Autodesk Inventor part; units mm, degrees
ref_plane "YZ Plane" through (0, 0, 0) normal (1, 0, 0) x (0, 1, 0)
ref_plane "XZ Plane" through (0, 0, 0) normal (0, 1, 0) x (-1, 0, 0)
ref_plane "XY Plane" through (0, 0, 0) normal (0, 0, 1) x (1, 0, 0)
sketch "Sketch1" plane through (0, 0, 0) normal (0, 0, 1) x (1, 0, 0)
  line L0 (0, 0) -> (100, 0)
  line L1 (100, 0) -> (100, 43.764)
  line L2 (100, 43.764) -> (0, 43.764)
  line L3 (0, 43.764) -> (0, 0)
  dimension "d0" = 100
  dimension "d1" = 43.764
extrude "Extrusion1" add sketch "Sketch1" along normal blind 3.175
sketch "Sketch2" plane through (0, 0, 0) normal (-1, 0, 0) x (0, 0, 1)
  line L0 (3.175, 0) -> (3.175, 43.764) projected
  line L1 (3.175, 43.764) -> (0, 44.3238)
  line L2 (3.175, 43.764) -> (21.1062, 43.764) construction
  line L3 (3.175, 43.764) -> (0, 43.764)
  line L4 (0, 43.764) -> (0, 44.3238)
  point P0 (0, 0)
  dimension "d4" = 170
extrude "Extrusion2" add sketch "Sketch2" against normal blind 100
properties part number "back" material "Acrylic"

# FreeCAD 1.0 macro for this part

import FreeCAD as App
import Part
import Sketcher
Q = App.Units.Quantity

doc = App.newDocument("Part")
params = doc.addObject("Spreadsheet::Sheet", "Params")
for row, (alias, value) in enumerate([
    ("sketch1_width", "3.937 in"),
    ("sketch1_height", "1.723 in"),
    ("pad1_length", "0.125 in"),
    ("sketch2_height", "0.125 in"),
    ("pad2_length", "3.9370079 in"),
], start=1):
    params.set(f"A{row}", alias)
    params.set(f"B{row}", "=" + value)
    params.setAlias(f"B{row}", alias)

body = doc.addObject("PartDesign::Body", "Body")

# Sketch on XY plane
sketch1 = doc.addObject("Sketcher::SketchObject", "Sketch")
body.addObject(sketch1)
sketch1.AttachmentSupport = (doc.XY_Plane, [""])
sketch1.MapMode = "FlatFace"
sketch1.addGeometry(Part.LineSegment(App.Vector(0, 44, 0), App.Vector(0, 0, 0)), False)
sketch1.addGeometry(Part.LineSegment(App.Vector(0, 0, 0), App.Vector(100, 0, 0)), False)
sketch1.addGeometry(Part.LineSegment(App.Vector(100, 0, 0), App.Vector(100, 44, 0)), False)
sketch1.addGeometry(Part.LineSegment(App.Vector(100, 44, 0), App.Vector(0, 44, 0)), False)
sketch1.addConstraint(Sketcher.Constraint("Coincident", 0, 2, 1, 1))
sketch1.addConstraint(Sketcher.Constraint("Coincident", 1, 2, 2, 1))
sketch1.addConstraint(Sketcher.Constraint("Coincident", 2, 2, 3, 1))
sketch1.addConstraint(Sketcher.Constraint("Coincident", 3, 2, 0, 1))
sketch1.addConstraint(Sketcher.Constraint("Vertical", 0))
sketch1.addConstraint(Sketcher.Constraint("Horizontal", 1))
sketch1.addConstraint(Sketcher.Constraint("Vertical", 2))
sketch1.addConstraint(Sketcher.Constraint("Horizontal", 3))
sketch1.addConstraint(Sketcher.Constraint("Coincident", 0, 2, -1, 1))
sketch1.addConstraint(Sketcher.Constraint("DistanceX", 1, 1, 1, 2, Q("3.937 in")))
sketch1.addConstraint(Sketcher.Constraint("DistanceY", 0, 2, 0, 1, Q("1.723 in")))
sketch1.setExpression("Constraints[9]", "Params.sketch1_width")
sketch1.setExpression("Constraints[10]", "Params.sketch1_height")
pad1 = doc.addObject("PartDesign::Pad", "Pad")
body.addObject(pad1)
pad1.Profile = sketch1
pad1.setExpression("Length", "Params.pad1_length")

# Sketch on YZ plane
sketch2 = doc.addObject("Sketcher::SketchObject", "Sketch001")
body.addObject(sketch2)
sketch2.AttachmentSupport = (doc.YZ_Plane, [""])
sketch2.MapMode = "FlatFace"
sketch2.addGeometry(Part.LineSegment(App.Vector(43.8, 0, 0), App.Vector(43.8, 3.2, 0)), False)
sketch2.addGeometry(Part.LineSegment(App.Vector(43.8, 3.2, 0), App.Vector(44.3, 0, 0)), False)
sketch2.addGeometry(Part.LineSegment(App.Vector(44.3, 0, 0), App.Vector(43.8, 0, 0)), False)
sketch2.addConstraint(Sketcher.Constraint("Coincident", 0, 2, 1, 1))
sketch2.addConstraint(Sketcher.Constraint("Coincident", 1, 2, 2, 1))
sketch2.addConstraint(Sketcher.Constraint("Coincident", 2, 2, 0, 1))
sketch2.addConstraint(Sketcher.Constraint("Vertical", 0))
sketch2.addConstraint(Sketcher.Constraint("Horizontal", 2))
sketch2.addConstraint(Sketcher.Constraint("PointOnObject", 1, 2, -1))
sketch2.addConstraint(Sketcher.Constraint("Angle", 1, Q("-80.0007 deg")))
sketch2.addConstraint(Sketcher.Constraint("DistanceY", 0, 1, 0, 2, Q("0.125 in")))
sketch2.addConstraint(Sketcher.Constraint("DistanceX", -1, 1, 0, 2, Q("1.723 in")))
sketch2.setExpression("Constraints[7]", "Params.sketch2_height")
pad2 = doc.addObject("PartDesign::Pad", "Pad001")
body.addObject(pad2)
pad2.Profile = sketch2
pad2.setExpression("Length", "Params.pad2_length")

doc.recompute()
